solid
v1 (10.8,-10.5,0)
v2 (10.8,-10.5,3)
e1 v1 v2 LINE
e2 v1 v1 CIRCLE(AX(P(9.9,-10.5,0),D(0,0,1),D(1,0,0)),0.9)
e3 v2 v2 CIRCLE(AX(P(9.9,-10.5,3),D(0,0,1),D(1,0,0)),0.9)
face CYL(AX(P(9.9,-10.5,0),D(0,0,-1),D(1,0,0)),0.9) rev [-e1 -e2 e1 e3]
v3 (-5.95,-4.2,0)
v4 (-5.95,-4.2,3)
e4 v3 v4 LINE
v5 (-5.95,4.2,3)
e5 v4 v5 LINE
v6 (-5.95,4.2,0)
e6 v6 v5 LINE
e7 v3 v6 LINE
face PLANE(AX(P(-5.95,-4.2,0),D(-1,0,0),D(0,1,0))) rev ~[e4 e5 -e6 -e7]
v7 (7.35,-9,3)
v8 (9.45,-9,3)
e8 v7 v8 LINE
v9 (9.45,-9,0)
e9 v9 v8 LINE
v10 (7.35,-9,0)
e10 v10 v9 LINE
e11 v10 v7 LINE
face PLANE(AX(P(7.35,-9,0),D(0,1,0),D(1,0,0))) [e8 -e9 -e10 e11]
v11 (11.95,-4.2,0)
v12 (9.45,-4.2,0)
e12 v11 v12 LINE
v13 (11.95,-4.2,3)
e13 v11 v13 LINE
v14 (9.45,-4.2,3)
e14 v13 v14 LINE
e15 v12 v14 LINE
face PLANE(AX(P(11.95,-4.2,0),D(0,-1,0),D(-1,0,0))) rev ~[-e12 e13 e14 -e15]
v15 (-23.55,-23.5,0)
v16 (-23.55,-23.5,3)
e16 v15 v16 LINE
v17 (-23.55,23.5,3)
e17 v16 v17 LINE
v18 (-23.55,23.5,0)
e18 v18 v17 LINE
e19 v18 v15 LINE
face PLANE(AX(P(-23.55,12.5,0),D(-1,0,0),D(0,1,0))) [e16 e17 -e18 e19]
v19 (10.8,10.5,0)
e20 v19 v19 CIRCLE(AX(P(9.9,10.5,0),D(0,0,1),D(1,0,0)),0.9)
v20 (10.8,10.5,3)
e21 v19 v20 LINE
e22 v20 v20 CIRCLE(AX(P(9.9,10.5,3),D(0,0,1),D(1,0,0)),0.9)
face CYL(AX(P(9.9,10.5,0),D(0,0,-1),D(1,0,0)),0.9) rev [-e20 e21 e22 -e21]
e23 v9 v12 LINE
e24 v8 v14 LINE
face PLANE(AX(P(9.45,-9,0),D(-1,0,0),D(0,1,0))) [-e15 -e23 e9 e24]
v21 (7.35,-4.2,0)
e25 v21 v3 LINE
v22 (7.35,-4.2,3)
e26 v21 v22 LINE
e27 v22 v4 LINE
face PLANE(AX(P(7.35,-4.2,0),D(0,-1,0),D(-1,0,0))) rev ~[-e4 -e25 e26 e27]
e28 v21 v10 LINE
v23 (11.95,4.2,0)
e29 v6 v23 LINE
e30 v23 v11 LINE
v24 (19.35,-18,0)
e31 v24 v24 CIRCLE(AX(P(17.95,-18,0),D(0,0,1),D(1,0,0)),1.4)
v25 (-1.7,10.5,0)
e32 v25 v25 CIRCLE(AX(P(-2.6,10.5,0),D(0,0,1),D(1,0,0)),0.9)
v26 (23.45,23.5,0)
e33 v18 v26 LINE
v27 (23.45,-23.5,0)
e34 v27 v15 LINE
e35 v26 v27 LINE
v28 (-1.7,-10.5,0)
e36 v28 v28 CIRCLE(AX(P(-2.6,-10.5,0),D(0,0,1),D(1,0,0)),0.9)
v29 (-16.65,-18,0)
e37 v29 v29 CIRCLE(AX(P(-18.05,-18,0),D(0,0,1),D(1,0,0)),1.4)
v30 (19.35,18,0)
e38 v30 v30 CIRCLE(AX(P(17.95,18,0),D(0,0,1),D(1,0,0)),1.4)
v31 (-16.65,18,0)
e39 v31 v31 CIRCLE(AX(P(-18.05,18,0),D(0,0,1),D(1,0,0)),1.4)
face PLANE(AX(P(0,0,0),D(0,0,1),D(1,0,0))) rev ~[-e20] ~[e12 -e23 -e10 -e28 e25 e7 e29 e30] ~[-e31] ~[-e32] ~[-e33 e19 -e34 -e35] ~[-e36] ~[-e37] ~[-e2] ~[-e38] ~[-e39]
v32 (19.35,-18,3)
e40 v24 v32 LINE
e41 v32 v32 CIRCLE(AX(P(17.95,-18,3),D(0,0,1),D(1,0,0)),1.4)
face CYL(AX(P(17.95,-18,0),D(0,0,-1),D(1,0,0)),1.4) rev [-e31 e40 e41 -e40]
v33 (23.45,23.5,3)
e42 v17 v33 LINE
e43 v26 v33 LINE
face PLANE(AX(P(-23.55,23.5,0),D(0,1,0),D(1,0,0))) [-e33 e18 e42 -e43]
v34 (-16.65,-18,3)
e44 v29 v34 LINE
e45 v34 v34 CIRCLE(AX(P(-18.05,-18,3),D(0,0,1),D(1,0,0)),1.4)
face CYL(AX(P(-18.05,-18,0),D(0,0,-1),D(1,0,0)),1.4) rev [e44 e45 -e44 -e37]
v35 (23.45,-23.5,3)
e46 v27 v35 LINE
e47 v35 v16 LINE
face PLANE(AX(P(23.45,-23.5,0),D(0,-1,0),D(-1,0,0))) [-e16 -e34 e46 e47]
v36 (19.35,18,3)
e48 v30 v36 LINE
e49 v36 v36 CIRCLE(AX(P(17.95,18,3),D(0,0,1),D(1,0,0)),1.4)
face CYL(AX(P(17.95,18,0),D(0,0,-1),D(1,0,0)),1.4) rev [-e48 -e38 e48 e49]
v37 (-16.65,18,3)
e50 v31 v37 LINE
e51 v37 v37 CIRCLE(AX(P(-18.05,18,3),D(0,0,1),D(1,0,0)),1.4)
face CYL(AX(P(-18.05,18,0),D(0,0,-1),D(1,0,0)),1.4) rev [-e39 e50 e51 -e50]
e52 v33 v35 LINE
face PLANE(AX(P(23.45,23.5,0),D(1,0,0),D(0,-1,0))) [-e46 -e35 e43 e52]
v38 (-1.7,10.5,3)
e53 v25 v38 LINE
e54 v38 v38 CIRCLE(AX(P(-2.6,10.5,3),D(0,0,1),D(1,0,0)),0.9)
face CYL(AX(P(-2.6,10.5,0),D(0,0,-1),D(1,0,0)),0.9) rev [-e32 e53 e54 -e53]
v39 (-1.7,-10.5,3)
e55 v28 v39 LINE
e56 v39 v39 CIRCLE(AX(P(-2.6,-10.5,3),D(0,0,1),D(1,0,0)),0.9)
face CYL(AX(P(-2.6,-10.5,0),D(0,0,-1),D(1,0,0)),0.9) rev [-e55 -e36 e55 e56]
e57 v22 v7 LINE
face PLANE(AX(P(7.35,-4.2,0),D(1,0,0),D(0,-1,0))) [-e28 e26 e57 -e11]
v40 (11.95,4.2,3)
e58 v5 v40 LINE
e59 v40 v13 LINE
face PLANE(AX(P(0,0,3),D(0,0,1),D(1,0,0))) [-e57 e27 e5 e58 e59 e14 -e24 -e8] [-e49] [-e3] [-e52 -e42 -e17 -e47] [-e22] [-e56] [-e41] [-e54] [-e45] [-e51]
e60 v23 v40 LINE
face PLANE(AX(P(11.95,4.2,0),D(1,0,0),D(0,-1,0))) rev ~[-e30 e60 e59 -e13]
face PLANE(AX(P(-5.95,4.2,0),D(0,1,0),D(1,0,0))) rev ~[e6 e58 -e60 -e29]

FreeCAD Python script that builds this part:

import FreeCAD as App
import Part
import Sketcher
from FreeCAD import Vector
Q = App.Units.Quantity

doc = App.newDocument("Part")
body = doc.addObject("PartDesign::Body", "Body")

# Sketch on XY plane
sketch1 = body.newObject("Sketcher::SketchObject", "Sketch")
sketch1.AttachmentSupport = (doc.getObject("XY_Plane"), [""])
sketch1.MapMode = "FlatFace"
sketch1.addGeometry(Part.LineSegment(Vector(-23.6, 23.5, 0), Vector(-23.6, -23.5, 0)), False)
sketch1.addGeometry(Part.LineSegment(Vector(-23.6, -23.5, 0), Vector(23.4, -23.5, 0)), False)
sketch1.addGeometry(Part.LineSegment(Vector(23.4, -23.5, 0), Vector(23.4, 23.5, 0)), False)
sketch1.addGeometry(Part.LineSegment(Vector(23.4, 23.5, 0), Vector(-23.6, 23.5, 0)), False)
sketch1.addGeometry(Part.Circle(Vector(-18.1, -18, 0), Vector(0, 0, 1), 1.4), False)
sketch1.addGeometry(Part.Circle(Vector(-2.6, -10.5, 0), Vector(0, 0, 1), 0.9), False)
sketch1.addGeometry(Part.Circle(Vector(17.9, -18, 0), Vector(0, 0, 1), 1.4), False)
sketch1.addGeometry(Part.Circle(Vector(9.9, -10.5, 0), Vector(0, 0, 1), 0.9), False)
sketch1.addGeometry(Part.LineSegment(Vector(11.9, 4.2, 0), Vector(11.9, -4.2, 0)), False)
sketch1.addGeometry(Part.LineSegment(Vector(11.9, -4.2, 0), Vector(9.4, -4.2, 0)), False)
sketch1.addGeometry(Part.LineSegment(Vector(9.4, -4.2, 0), Vector(9.4, -9, 0)), False)
sketch1.addGeometry(Part.LineSegment(Vector(9.4, -9, 0), Vector(7.3, -9, 0)), False)
sketch1.addGeometry(Part.LineSegment(Vector(7.3, -9, 0), Vector(7.3, -4.2, 0)), False)
sketch1.addGeometry(Part.LineSegment(Vector(7.3, -4.2, 0), Vector(-6, -4.2, 0)), False)
sketch1.addGeometry(Part.LineSegment(Vector(-6, -4.2, 0), Vector(-6, 4.2, 0)), False)
sketch1.addGeometry(Part.LineSegment(Vector(-6, 4.2, 0), Vector(11.9, 4.2, 0)), False)
sketch1.addGeometry(Part.Circle(Vector(-2.6, 10.5, 0), Vector(0, 0, 1), 0.9), False)
sketch1.addGeometry(Part.Circle(Vector(-18.1, 18, 0), Vector(0, 0, 1), 1.4), False)
sketch1.addGeometry(Part.Circle(Vector(9.9, 10.5, 0), Vector(0, 0, 1), 0.9), False)
sketch1.addGeometry(Part.Circle(Vector(17.9, 18, 0), Vector(0, 0, 1), 1.4), False)
sketch1.addConstraint(Sketcher.Constraint("Coincident", 0, 2, 1, 1))
sketch1.addConstraint(Sketcher.Constraint("Coincident", 1, 2, 2, 1))
sketch1.addConstraint(Sketcher.Constraint("Coincident", 2, 2, 3, 1))
sketch1.addConstraint(Sketcher.Constraint("Coincident", 3, 2, 0, 1))
sketch1.addConstraint(Sketcher.Constraint("Coincident", 8, 2, 9, 1))
sketch1.addConstraint(Sketcher.Constraint("Coincident", 9, 2, 10, 1))
sketch1.addConstraint(Sketcher.Constraint("Coincident", 10, 2, 11, 1))
sketch1.addConstraint(Sketcher.Constraint("Coincident", 11, 2, 12, 1))
sketch1.addConstraint(Sketcher.Constraint("Coincident", 12, 2, 13, 1))
sketch1.addConstraint(Sketcher.Constraint("Coincident", 13, 2, 14, 1))
sketch1.addConstraint(Sketcher.Constraint("Coincident", 14, 2, 15, 1))
sketch1.addConstraint(Sketcher.Constraint("Coincident", 15, 2, 8, 1))
sketch1.addConstraint(Sketcher.Constraint("Vertical", 0))
sketch1.addConstraint(Sketcher.Constraint("Horizontal", 1))
sketch1.addConstraint(Sketcher.Constraint("Vertical", 2))
sketch1.addConstraint(Sketcher.Constraint("Horizontal", 3))
sketch1.addConstraint(Sketcher.Constraint("Vertical", 8))
sketch1.addConstraint(Sketcher.Constraint("Horizontal", 9))
sketch1.addConstraint(Sketcher.Constraint("Vertical", 10))
sketch1.addConstraint(Sketcher.Constraint("Horizontal", 11))
sketch1.addConstraint(Sketcher.Constraint("Vertical", 12))
sketch1.addConstraint(Sketcher.Constraint("Horizontal", 13))
sketch1.addConstraint(Sketcher.Constraint("Vertical", 14))
sketch1.addConstraint(Sketcher.Constraint("Horizontal", 15))
sketch1.addConstraint(Sketcher.Constraint("Equal", 4, 6))
sketch1.addConstraint(Sketcher.Constraint("Equal", 5, 7))
sketch1.addConstraint(Sketcher.Constraint("Equal", 7, 16))
sketch1.addConstraint(Sketcher.Constraint("Equal", 6, 17))
sketch1.addConstraint(Sketcher.Constraint("Equal", 16, 18))
sketch1.addConstraint(Sketcher.Constraint("Equal", 17, 19))
sketch1.addConstraint(Sketcher.Constraint("Symmetric", 5, 3, 16, 3, -1))
sketch1.addConstraint(Sketcher.Constraint("Symmetric", 4, 3, 17, 3, -1))
sketch1.addConstraint(Sketcher.Constraint("Symmetric", 7, 3, 18, 3, -1))
sketch1.addConstraint(Sketcher.Constraint("Symmetric", 6, 3, 19, 3, -1))
sketch1.addConstraint(Sketcher.Constraint("Horizontal", 4, 3, 6, 3))
sketch1.addConstraint(Sketcher.Constraint("Horizontal", 5, 3, 7, 3))
sketch1.addConstraint(Sketcher.Constraint("Horizontal", 9, 2, 12, 2))
sketch1.addConstraint(Sketcher.Constraint("Equal", 3, 0))
sketch1.addConstraint(Sketcher.Constraint("Diameter", 5, Q("1.8 mm")))
sketch1.addConstraint(Sketcher.Constraint("Diameter", 4, Q("2.8 mm")))
sketch1.addConstraint(Sketcher.Constraint("DistanceX", 1, 1, 1, 2, Q("47 mm")))
sketch1.addConstraint(Sketcher.Constraint("DistanceX", 9, 2, 9, 1, Q("2.5 mm")))
sketch1.addConstraint(Sketcher.Constraint("DistanceX", 11, 2, 11, 1, Q("2.1 mm")))
sketch1.addConstraint(Sketcher.Constraint("DistanceX", 13, 2, 13, 1, Q("13.3 mm")))
sketch1.addConstraint(Sketcher.Constraint("DistanceY", 8, 2, 8, 1, Q("8.4 mm")))
sketch1.addConstraint(Sketcher.Constraint("DistanceY", 10, 2, 10, 1, Q("4.8 mm")))
sketch1.addConstraint(Sketcher.Constraint("DistanceY", 4, 3, -1, 1, Q("18 mm")))
sketch1.addConstraint(Sketcher.Constraint("DistanceY", 10, 2, -1, 1, Q("9 mm")))
sketch1.addConstraint(Sketcher.Constraint("DistanceX", 4, 3, 6, 3, Q("36 mm")))
sketch1.addConstraint(Sketcher.Constraint("DistanceY", 5, 3, 16, 3, Q("21 mm")))
sketch1.addConstraint(Sketcher.Constraint("DistanceY", 0, 2, 5, 3, Q("13 mm")))
sketch1.addConstraint(Sketcher.Constraint("DistanceX", 8, 2, 6, 3, Q("6 mm")))
sketch1.addConstraint(Sketcher.Constraint("DistanceX", 5, 3, -1, 1, Q("2.6 mm")))
sketch1.addConstraint(Sketcher.Constraint("DistanceX", -1, 1, 7, 3, Q("9.9 mm")))
sketch1.addConstraint(Sketcher.Constraint("DistanceX", 0, 2, 4, 3, Q("5.5 mm")))
sketch1.addConstraint(Sketcher.Constraint("DistanceX", 4, 3, -1, 1, Q("18.05 mm")))
pad1 = body.newObject("PartDesign::Pad", "Pad")
pad1.Profile = sketch1
pad1.Length = 3

doc.recompute()
